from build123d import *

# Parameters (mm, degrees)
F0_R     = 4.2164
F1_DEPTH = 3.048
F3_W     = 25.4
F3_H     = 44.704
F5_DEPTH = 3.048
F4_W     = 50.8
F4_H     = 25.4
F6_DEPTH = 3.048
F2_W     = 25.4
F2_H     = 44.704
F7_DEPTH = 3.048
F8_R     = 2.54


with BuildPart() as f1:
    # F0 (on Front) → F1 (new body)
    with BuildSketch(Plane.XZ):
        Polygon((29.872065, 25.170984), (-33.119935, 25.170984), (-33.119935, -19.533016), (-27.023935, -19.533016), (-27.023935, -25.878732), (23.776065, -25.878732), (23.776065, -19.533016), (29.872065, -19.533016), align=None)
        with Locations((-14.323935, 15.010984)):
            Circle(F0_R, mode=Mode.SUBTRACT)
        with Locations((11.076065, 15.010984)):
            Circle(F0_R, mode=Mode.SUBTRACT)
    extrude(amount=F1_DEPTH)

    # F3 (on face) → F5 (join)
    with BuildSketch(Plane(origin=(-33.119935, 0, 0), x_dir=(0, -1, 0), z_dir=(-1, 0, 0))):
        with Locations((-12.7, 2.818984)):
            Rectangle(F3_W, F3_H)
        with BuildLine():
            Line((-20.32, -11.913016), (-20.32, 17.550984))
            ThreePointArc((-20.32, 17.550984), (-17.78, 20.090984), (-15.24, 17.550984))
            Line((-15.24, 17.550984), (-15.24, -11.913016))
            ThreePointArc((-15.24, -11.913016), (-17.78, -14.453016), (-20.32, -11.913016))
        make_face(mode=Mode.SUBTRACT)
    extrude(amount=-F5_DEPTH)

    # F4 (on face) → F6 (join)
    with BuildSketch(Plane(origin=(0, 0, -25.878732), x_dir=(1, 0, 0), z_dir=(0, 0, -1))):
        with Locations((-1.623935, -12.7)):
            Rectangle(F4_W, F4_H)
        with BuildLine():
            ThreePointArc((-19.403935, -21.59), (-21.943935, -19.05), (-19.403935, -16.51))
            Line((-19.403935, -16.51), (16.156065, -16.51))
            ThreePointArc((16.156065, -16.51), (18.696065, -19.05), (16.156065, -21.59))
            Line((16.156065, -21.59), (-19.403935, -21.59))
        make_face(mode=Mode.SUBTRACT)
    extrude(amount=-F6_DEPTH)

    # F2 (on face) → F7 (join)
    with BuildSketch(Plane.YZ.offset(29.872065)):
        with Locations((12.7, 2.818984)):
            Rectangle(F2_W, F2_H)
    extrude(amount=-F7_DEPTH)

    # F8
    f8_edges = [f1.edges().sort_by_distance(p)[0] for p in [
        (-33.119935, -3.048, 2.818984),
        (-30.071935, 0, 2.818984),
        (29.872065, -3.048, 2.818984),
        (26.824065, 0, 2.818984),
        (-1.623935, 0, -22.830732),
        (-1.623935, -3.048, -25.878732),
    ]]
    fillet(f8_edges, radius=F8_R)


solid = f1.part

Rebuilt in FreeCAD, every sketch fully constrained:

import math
import FreeCAD as App
import Part
import Sketcher
from FreeCAD import Vector
Q = App.Units.Quantity


def edges_at(feature, points):
    """Names of the edges that pass closest to the given points."""
    edges = feature.Shape.Edges
    near = lambda p: min(range(len(edges)), key=lambda i: edges[i].distToShape(Part.Vertex(*p))[0])
    return sorted({f"Edge{near(p) + 1}" for p in points})


def add_polygon(sketch, points):
    """Adds a closed chain of lines whose ends are joined by coincident constraints."""
    first, n = sketch.GeometryCount, len(points)
    for a, b in zip(points, points[1:] + points[:1]):
        sketch.addGeometry(Part.LineSegment(App.Vector(*a, 0), App.Vector(*b, 0)), False)
    for i in range(n):
        sketch.addConstraint(Sketcher.Constraint("Coincident", first + i, 2, first + (i + 1) % n, 1))

doc = App.newDocument("Part")
body = doc.addObject("PartDesign::Body", "Body")

# Sketch on XZ plane
sketch1 = doc.addObject("Sketcher::SketchObject", "Sketch")
body.addObject(sketch1)
sketch1.AttachmentSupport = (doc.XZ_Plane, [""])
sketch1.MapMode = "FlatFace"
add_polygon(sketch1, [(29.872065, 25.170984), (-33.119935, 25.170984), (-33.119935, -19.533016), (-27.023935, -19.533016), (-27.023935, -25.878732), (23.776065, -25.878732), (23.776065, -19.533016), (29.872065, -19.533016)])  # lines 0-7
sketch1.addGeometry(Part.Circle(Vector(-14.323935, 15.010984, 0), Vector(0, 0, 1), 4.2164), False)  # 8
sketch1.addGeometry(Part.Circle(Vector(11.076065, 15.010984, 0), Vector(0, 0, 1), 4.2164), False)  # 9
sketch1.addConstraint(Sketcher.Constraint("Horizontal", 0))
sketch1.addConstraint(Sketcher.Constraint("Vertical", 1))
sketch1.addConstraint(Sketcher.Constraint("Horizontal", 2))
sketch1.addConstraint(Sketcher.Constraint("Vertical", 3))
sketch1.addConstraint(Sketcher.Constraint("Horizontal", 4))
sketch1.addConstraint(Sketcher.Constraint("Vertical", 5))
sketch1.addConstraint(Sketcher.Constraint("Horizontal", 6))
sketch1.addConstraint(Sketcher.Constraint("Vertical", 7))
sketch1.addConstraint(Sketcher.Constraint("Equal", 8, 9))
sketch1.addConstraint(Sketcher.Constraint("Horizontal", 8, 3, 9, 3))
sketch1.addConstraint(Sketcher.Constraint("Horizontal", 2, 2, 5, 2))
sketch1.addConstraint(Sketcher.Constraint("Equal", 2, 6))
sketch1.addConstraint(Sketcher.Constraint("DistanceX", 4, 1, 4, 2, Q("2 in")))
sketch1.addConstraint(Sketcher.Constraint("Diameter", 8, Q("0.332 in")))
sketch1.addConstraint(Sketcher.Constraint("DistanceX", 8, 3, 9, 3, Q("1 in")))
sketch1.addConstraint(Sketcher.Constraint("DistanceX", 0, 2, 0, 1, Q("2.48 in")))
sketch1.addConstraint(Sketcher.Constraint("DistanceY", 1, 2, 1, 1, Q("1.76 in")))
sketch1.addConstraint(Sketcher.Constraint("DistanceY", 8, 3, 0, 2, Q("0.4 in")))
sketch1.addConstraint(Sketcher.Constraint("DistanceX", 2, 2, 8, 3, Q("0.5 in")))
sketch1.addConstraint(Sketcher.Constraint("DistanceY", 3, 2, 3, 1, Q("6.345716 mm")))
sketch1.addConstraint(Sketcher.Constraint("DistanceY", 3, 2, -1, 1, Q("25.878732 mm")))
sketch1.addConstraint(Sketcher.Constraint("DistanceX", 8, 3, -1, 1, Q("14.323935 mm")))
pad1 = doc.addObject("PartDesign::Pad", "Pad")
body.addObject(pad1)
pad1.Profile = sketch1
pad1.Length = Q("0.12 in")

# Sketch on YZ plane
sketch2 = doc.addObject("Sketcher::SketchObject", "Sketch001")
body.addObject(sketch2)
sketch2.AttachmentSupport = (doc.YZ_Plane, [""])
sketch2.MapMode = "FlatFace"
sketch2.AttachmentOffset = App.Placement(Vector(0, 0, -33.119935), App.Rotation())
add_polygon(sketch2, [(25.4, 25.170984), (25.4, -19.533016), (0, -19.533016), (0, 25.170984)])  # lines 0-3
sketch2.addGeometry(Part.ArcOfCircle(Part.Circle(Vector(17.78, -11.913016, 0), Vector(0, 0, 1), 2.54), math.radians(180), math.radians(360)), False)  # 4
sketch2.addGeometry(Part.LineSegment(Vector(20.32, -11.913016, 0), Vector(20.32, 17.550984, 0)), False)  # 5
sketch2.addGeometry(Part.ArcOfCircle(Part.Circle(Vector(17.78, 17.550984, 0), Vector(0, 0, 1), 2.54), math.radians(0), math.radians(180)), False)  # 6
sketch2.addGeometry(Part.LineSegment(Vector(15.24, 17.550984, 0), Vector(15.24, -11.913016, 0)), False)  # 7
sketch2.addConstraint(Sketcher.Constraint("Tangent", 4, 2, 5, 1))
sketch2.addConstraint(Sketcher.Constraint("Tangent", 5, 2, 6, 1))
sketch2.addConstraint(Sketcher.Constraint("Tangent", 6, 2, 7, 1))
sketch2.addConstraint(Sketcher.Constraint("Tangent", 7, 2, 4, 1))
sketch2.addConstraint(Sketcher.Constraint("Vertical", 0))
sketch2.addConstraint(Sketcher.Constraint("Horizontal", 1))
sketch2.addConstraint(Sketcher.Constraint("Vertical", 2))
sketch2.addConstraint(Sketcher.Constraint("Horizontal", 3))
sketch2.addConstraint(Sketcher.Constraint("Vertical", 5))
sketch2.addConstraint(Sketcher.Constraint("Vertical", 7))
sketch2.addConstraint(Sketcher.Constraint("PointOnObject", 1, 2, -2))
sketch2.addConstraint(Sketcher.Constraint("Radius", 4, Q("0.1 in")))
sketch2.addConstraint(Sketcher.Constraint("DistanceX", 1, 2, 1, 1, Q("1 in")))
sketch2.addConstraint(Sketcher.Constraint("DistanceY", 0, 2, 0, 1, Q("1.76 in")))
sketch2.addConstraint(Sketcher.Constraint("DistanceY", 5, 1, 5, 2, Q("1.16 in")))
sketch2.addConstraint(Sketcher.Constraint("DistanceX", -1, 1, 4, 3, Q("0.7 in")))
sketch2.addConstraint(Sketcher.Constraint("DistanceY", 0, 2, 4, 3, Q("0.3 in")))
sketch2.addConstraint(Sketcher.Constraint("DistanceY", 4, 3, -1, 1, Q("11.913016 mm")))
pad2 = doc.addObject("PartDesign::Pad", "Pad001")
body.addObject(pad2)
pad2.Profile = sketch2
pad2.Length = Q("0.12 in")

# Sketch on XY plane
sketch3 = doc.addObject("Sketcher::SketchObject", "Sketch002")
body.addObject(sketch3)
sketch3.AttachmentSupport = (doc.XY_Plane, [""])
sketch3.MapMode = "FlatFace"
sketch3.AttachmentOffset = App.Placement(Vector(0, 0, -25.878732), App.Rotation())
add_polygon(sketch3, [(-27.023935, 0), (-27.023935, 25.4), (23.776065, 25.4), (23.776065, 0)])  # lines 0-3
sketch3.addGeometry(Part.LineSegment(Vector(16.156065, 21.59, 0), Vector(-19.403935, 21.59, 0)), False)  # 4
sketch3.addGeometry(Part.ArcOfCircle(Part.Circle(Vector(-19.403935, 19.05, 0), Vector(0, 0, 1), 2.54), math.radians(90), math.radians(270)), False)  # 5
sketch3.addGeometry(Part.LineSegment(Vector(-19.403935, 16.51, 0), Vector(16.156065, 16.51, 0)), False)  # 6
sketch3.addGeometry(Part.ArcOfCircle(Part.Circle(Vector(16.156065, 19.05, 0), Vector(0, 0, 1), 2.54), math.radians(-90), math.radians(90)), False)  # 7
sketch3.addConstraint(Sketcher.Constraint("Tangent", 4, 2, 5, 1))
sketch3.addConstraint(Sketcher.Constraint("Tangent", 5, 2, 6, 1))
sketch3.addConstraint(Sketcher.Constraint("Tangent", 6, 2, 7, 1))
sketch3.addConstraint(Sketcher.Constraint("Tangent", 7, 2, 4, 1))
sketch3.addConstraint(Sketcher.Constraint("Vertical", 0))
sketch3.addConstraint(Sketcher.Constraint("Horizontal", 1))
sketch3.addConstraint(Sketcher.Constraint("Vertical", 2))
sketch3.addConstraint(Sketcher.Constraint("Horizontal", 3))
sketch3.addConstraint(Sketcher.Constraint("Horizontal", 4))
sketch3.addConstraint(Sketcher.Constraint("Horizontal", 6))
sketch3.addConstraint(Sketcher.Constraint("PointOnObject", 2, 2, -1))
sketch3.addConstraint(Sketcher.Constraint("Radius", 5, Q("0.1 in")))
sketch3.addConstraint(Sketcher.Constraint("DistanceX", 1, 1, 1, 2, Q("2 in")))
sketch3.addConstraint(Sketcher.Constraint("DistanceY", 0, 1, 0, 2, Q("1 in")))
sketch3.addConstraint(Sketcher.Constraint("DistanceX", 4, 2, 4, 1, Q("1.4 in")))
sketch3.addConstraint(Sketcher.Constraint("DistanceX", 0, 2, 5, 3, Q("0.3 in")))
sketch3.addConstraint(Sketcher.Constraint("DistanceY", -1, 1, 5, 3, Q("0.75 in")))
sketch3.addConstraint(Sketcher.Constraint("DistanceX", 5, 3, -1, 1, Q("19.403935 mm")))
pad3 = doc.addObject("PartDesign::Pad", "Pad002")
body.addObject(pad3)
pad3.Profile = sketch3
pad3.Length = Q("0.12 in")

# Sketch on YZ plane
sketch4 = doc.addObject("Sketcher::SketchObject", "Sketch003")
body.addObject(sketch4)
sketch4.AttachmentSupport = (doc.YZ_Plane, [""])
sketch4.MapMode = "FlatFace"
sketch4.AttachmentOffset = App.Placement(Vector(0, 0, 29.872065), App.Rotation())
add_polygon(sketch4, [(0, 25.170984), (0, -19.533016), (25.4, -19.533016), (25.4, 25.170984)])  # lines 0-3
sketch4.addConstraint(Sketcher.Constraint("Vertical", 0))
sketch4.addConstraint(Sketcher.Constraint("Horizontal", 1))
sketch4.addConstraint(Sketcher.Constraint("Vertical", 2))
sketch4.addConstraint(Sketcher.Constraint("Horizontal", 3))
sketch4.addConstraint(Sketcher.Constraint("PointOnObject", 0, 2, -2))
sketch4.addConstraint(Sketcher.Constraint("DistanceX", 1, 1, 1, 2, Q("1 in")))
sketch4.addConstraint(Sketcher.Constraint("DistanceY", 0, 2, 0, 1, Q("1.76 in")))
sketch4.addConstraint(Sketcher.Constraint("DistanceY", 0, 2, -1, 1, Q("19.533016 mm")))
pad4 = doc.addObject("PartDesign::Pad", "Pad003")
body.addObject(pad4)
pad4.Profile = sketch4
pad4.Length = Q("0.12 in")
pad4.Reversed = True
doc.recompute()

fillet = doc.addObject("PartDesign::Fillet", "Fillet")
body.addObject(fillet)
fillet.Base = (pad4, edges_at(pad4, [
    (-33.12, -3.048, 2.819),
    (-30.072, 0, 2.819),
    (29.872, -3.048, 2.819),
    (26.824, 0, 2.819),
    (-1.624, 0, -22.831),
    (-1.624, -3.048, -25.879),
]))
fillet.Radius = Q("0.1 in")

doc.recompute()
